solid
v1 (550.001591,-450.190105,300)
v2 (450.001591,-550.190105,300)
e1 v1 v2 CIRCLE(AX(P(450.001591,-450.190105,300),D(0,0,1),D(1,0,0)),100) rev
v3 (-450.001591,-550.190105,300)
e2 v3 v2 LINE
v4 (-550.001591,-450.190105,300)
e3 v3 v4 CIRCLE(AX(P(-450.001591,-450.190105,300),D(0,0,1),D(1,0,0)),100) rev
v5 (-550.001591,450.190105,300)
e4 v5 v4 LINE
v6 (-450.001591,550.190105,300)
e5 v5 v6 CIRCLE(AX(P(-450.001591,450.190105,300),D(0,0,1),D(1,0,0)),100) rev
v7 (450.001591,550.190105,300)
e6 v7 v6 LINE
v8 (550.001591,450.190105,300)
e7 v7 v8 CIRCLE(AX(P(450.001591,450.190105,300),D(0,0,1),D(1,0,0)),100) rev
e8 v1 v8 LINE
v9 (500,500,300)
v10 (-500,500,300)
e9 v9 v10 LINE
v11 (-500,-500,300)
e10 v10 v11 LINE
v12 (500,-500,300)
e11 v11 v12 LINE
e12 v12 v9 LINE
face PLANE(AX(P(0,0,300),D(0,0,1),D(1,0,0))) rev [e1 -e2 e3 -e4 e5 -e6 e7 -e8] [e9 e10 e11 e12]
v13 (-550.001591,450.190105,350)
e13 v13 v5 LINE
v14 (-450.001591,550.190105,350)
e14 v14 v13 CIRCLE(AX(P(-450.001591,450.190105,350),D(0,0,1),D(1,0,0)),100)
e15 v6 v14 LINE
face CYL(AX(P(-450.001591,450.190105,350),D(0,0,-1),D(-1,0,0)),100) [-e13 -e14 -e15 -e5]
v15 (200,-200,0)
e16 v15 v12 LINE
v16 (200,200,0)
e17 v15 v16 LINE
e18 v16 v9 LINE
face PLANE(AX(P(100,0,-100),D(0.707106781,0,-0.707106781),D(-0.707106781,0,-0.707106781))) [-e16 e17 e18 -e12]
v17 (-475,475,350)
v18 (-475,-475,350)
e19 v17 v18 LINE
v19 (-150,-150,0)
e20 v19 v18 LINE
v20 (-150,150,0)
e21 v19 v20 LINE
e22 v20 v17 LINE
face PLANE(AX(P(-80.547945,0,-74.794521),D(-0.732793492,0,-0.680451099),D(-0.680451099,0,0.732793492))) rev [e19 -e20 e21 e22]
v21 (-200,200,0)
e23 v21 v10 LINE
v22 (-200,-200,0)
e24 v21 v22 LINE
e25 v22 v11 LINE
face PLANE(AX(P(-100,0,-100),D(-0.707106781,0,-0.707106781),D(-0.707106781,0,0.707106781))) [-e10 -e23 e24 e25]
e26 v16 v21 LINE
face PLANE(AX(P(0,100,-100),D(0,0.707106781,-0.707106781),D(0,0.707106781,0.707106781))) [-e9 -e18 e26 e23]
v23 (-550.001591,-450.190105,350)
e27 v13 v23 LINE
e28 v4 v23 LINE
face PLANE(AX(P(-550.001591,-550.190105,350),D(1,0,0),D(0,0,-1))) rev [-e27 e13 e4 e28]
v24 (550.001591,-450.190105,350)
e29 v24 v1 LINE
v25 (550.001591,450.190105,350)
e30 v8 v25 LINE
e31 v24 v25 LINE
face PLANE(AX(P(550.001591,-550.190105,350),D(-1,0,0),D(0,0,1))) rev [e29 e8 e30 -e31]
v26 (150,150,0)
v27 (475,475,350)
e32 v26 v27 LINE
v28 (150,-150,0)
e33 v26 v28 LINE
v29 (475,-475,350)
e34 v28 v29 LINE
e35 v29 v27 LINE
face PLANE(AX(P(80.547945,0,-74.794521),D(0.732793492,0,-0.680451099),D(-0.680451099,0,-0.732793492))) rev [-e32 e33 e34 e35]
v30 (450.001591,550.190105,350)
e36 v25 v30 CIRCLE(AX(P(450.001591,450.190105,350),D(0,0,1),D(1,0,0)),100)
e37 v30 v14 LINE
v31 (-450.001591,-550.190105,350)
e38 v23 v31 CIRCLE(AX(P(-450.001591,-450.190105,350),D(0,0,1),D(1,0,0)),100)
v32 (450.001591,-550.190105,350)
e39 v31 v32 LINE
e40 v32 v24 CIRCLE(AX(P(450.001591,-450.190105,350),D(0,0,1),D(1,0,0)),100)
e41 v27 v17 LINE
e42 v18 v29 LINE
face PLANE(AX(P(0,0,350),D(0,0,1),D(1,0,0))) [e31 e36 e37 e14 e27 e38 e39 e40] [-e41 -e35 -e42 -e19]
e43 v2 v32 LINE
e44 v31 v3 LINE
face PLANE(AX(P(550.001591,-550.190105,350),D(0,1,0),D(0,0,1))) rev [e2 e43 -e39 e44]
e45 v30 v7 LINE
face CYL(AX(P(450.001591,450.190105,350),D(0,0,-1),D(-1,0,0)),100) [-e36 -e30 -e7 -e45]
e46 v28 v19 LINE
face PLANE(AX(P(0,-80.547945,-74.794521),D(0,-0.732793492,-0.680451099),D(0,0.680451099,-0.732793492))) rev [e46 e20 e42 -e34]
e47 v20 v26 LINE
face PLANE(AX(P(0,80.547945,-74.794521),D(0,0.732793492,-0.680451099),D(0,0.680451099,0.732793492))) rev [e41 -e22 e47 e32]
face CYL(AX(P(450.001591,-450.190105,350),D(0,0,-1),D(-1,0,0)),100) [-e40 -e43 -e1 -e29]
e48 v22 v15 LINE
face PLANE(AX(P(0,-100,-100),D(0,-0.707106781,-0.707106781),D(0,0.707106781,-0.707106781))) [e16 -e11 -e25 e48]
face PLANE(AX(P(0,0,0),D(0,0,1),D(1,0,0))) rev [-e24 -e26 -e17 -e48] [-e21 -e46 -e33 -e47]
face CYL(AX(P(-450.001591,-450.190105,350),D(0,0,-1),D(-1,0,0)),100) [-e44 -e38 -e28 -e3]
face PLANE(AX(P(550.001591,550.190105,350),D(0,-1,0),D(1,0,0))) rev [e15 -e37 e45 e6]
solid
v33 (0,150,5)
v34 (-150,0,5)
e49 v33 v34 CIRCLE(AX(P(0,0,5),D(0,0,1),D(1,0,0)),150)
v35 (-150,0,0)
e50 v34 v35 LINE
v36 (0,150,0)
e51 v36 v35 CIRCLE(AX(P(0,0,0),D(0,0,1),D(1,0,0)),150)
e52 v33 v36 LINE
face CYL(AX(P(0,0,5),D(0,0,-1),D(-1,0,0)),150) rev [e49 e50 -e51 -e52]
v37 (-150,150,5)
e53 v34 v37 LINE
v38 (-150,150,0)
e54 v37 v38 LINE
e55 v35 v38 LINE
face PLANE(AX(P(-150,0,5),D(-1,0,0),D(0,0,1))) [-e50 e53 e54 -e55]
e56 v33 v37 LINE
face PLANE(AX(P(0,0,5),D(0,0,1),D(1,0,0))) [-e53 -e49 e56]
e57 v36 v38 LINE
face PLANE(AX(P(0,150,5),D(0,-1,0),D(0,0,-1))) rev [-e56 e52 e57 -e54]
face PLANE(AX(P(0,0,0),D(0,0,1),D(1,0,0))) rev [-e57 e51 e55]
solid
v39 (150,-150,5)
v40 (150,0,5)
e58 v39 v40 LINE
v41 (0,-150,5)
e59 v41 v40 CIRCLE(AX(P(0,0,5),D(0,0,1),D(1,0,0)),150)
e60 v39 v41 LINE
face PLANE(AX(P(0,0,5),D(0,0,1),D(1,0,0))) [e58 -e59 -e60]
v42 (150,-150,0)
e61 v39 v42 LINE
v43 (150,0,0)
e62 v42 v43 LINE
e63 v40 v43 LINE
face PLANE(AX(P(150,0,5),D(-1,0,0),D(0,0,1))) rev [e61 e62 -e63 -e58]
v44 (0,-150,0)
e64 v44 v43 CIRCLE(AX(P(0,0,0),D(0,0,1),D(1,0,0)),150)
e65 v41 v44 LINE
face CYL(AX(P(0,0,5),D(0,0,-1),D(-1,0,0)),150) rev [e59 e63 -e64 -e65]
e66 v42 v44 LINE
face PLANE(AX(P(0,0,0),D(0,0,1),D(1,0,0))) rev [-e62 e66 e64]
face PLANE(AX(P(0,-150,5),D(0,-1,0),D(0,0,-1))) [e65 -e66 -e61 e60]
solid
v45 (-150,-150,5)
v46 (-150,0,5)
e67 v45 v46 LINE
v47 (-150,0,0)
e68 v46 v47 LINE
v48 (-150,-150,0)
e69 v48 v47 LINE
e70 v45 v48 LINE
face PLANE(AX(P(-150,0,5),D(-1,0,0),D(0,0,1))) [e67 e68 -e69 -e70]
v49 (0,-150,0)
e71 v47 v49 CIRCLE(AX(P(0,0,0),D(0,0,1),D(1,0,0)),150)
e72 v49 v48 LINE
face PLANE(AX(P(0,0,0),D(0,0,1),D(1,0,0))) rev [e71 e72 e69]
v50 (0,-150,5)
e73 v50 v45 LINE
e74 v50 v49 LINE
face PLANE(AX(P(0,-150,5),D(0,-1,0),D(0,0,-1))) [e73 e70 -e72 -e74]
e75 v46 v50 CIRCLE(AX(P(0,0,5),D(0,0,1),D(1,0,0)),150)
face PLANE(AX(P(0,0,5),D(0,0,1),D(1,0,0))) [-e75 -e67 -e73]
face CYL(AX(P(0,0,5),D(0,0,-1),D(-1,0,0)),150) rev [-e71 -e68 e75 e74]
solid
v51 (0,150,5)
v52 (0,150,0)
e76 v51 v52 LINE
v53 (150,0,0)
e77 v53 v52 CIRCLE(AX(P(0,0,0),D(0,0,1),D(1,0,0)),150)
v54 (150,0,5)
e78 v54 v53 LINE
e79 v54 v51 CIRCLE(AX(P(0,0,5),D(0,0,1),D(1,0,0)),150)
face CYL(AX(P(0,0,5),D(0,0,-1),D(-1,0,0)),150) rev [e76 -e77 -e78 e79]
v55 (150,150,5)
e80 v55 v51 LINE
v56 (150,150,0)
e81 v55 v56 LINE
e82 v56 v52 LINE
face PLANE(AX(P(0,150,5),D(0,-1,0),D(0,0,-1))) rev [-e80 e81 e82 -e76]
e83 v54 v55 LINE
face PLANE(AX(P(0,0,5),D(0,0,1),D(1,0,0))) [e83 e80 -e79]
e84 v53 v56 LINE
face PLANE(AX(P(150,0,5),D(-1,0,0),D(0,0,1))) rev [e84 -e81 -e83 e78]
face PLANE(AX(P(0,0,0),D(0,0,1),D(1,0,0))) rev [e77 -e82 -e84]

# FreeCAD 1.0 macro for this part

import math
import FreeCAD as App
import Part
import Sketcher
from FreeCAD import Vector


def edges_at(feature, points):
    """Names of the edges that pass closest to the given points."""
    edges = feature.Shape.Edges
    near = lambda p: min(range(len(edges)), key=lambda i: edges[i].distToShape(Part.Vertex(*p))[0])
    return sorted({f"Edge{near(p) + 1}" for p in points})

doc = App.newDocument("Part")
body = doc.addObject("PartDesign::Body", "Body")

sketch1 = body.newObject("Sketcher::SketchObject", "Sketch")
sketch1.AttachmentSupport = (doc.getObject("XY_Plane"), [""])
sketch1.MapMode = "FlatFace"
sketch1.addGeometry([
    Part.LineSegment(Vector(-200, -200, 0), Vector(200, -200, 0)),
    Part.LineSegment(Vector(200, -200, 0), Vector(200, 200, 0)),
    Part.LineSegment(Vector(200, 200, 0), Vector(-200, 200, 0)),
    Part.LineSegment(Vector(-200, 200, 0), Vector(-200, -200, 0)),
], False)
sketch1.addConstraint([
    Sketcher.Constraint("Coincident", 0, 2, 1, 1),
    Sketcher.Constraint("Coincident", 1, 2, 2, 1),
    Sketcher.Constraint("Coincident", 2, 2, 3, 1),
    Sketcher.Constraint("Coincident", 3, 2, 0, 1),
    Sketcher.Constraint("Horizontal", 0),
    Sketcher.Constraint("Vertical", 1),
    Sketcher.Constraint("Horizontal", 2),
    Sketcher.Constraint("Vertical", 3),
    Sketcher.Constraint("Symmetric", 0, 2, 2, 2, -1, 1),
    Sketcher.Constraint("Equal", 2, 1),
    Sketcher.Constraint("DistanceX", 0, 1, 0, 2, 400.0),
])

sketch2 = body.newObject("Sketcher::SketchObject", "Sketch001")
sketch2.AttachmentSupport = (doc.getObject("XY_Plane"), [""])
sketch2.MapMode = "FlatFace"
sketch2.AttachmentOffset = App.Placement(Vector(0, 0, 300), App.Rotation())
sketch2.addGeometry([
    Part.LineSegment(Vector(-500, -500, 0), Vector(500, -500, 0)),
    Part.LineSegment(Vector(500, -500, 0), Vector(500, 500, 0)),
    Part.LineSegment(Vector(500, 500, 0), Vector(-500, 500, 0)),
    Part.LineSegment(Vector(-500, 500, 0), Vector(-500, -500, 0)),
], False)
sketch2.addConstraint([
    Sketcher.Constraint("Coincident", 0, 2, 1, 1),
    Sketcher.Constraint("Coincident", 1, 2, 2, 1),
    Sketcher.Constraint("Coincident", 2, 2, 3, 1),
    Sketcher.Constraint("Coincident", 3, 2, 0, 1),
    Sketcher.Constraint("Horizontal", 0),
    Sketcher.Constraint("Vertical", 1),
    Sketcher.Constraint("Horizontal", 2),
    Sketcher.Constraint("Vertical", 3),
    Sketcher.Constraint("Symmetric", 0, 2, 2, 2, -1, 1),
    Sketcher.Constraint("Equal", 2, 1),
    Sketcher.Constraint("DistanceX", 0, 1, 0, 2, 1000.0),
])

additiveloft = body.newObject("PartDesign::AdditiveLoft", "AdditiveLoft")
additiveloft.Profile = sketch1
additiveloft.Sections = [sketch2]

sketch3 = body.newObject("Sketcher::SketchObject", "Sketch002")
sketch3.AttachmentSupport = (doc.getObject("XY_Plane"), [""])
sketch3.MapMode = "FlatFace"
sketch3.AttachmentOffset = App.Placement(Vector(0, 0, 300), App.Rotation())
sketch3.addGeometry([
    Part.LineSegment(Vector(-550, 550, 0), Vector(-550, -550, 0)),
    Part.LineSegment(Vector(-550, -550, 0), Vector(550, -550, 0)),
    Part.LineSegment(Vector(550, -550, 0), Vector(550, 550, 0)),
    Part.LineSegment(Vector(550, 550, 0), Vector(-550, 550, 0)),
], False)
sketch3.addConstraint([
    Sketcher.Constraint("Coincident", 0, 2, 1, 1),
    Sketcher.Constraint("Coincident", 1, 2, 2, 1),
    Sketcher.Constraint("Coincident", 2, 2, 3, 1),
    Sketcher.Constraint("Coincident", 3, 2, 0, 1),
    Sketcher.Constraint("Vertical", 0),
    Sketcher.Constraint("Horizontal", 1),
    Sketcher.Constraint("Vertical", 2),
    Sketcher.Constraint("Horizontal", 3),
    Sketcher.Constraint("Symmetric", 0, 2, 2, 2, -1, 1),
    Sketcher.Constraint("DistanceY", 0, 2, 0, 1, 1100.38021),
    Sketcher.Constraint("DistanceX", 1, 1, 1, 2, 1100.003183),
])
pad1 = body.newObject("PartDesign::Pad", "Pad")
pad1.Profile = sketch3
pad1.Length = 50
doc.recompute()

fillet = body.newObject("PartDesign::Fillet", "Fillet")
fillet.Base = (pad1, edges_at(pad1, [(-550.002, -550.19, 325)]))
fillet.Radius = 100
doc.recompute()

fillet2 = body.newObject("PartDesign::Fillet", "Fillet001")
fillet2.Base = (fillet, edges_at(fillet, [(550.002, -550.19, 325)]))
fillet2.Radius = 100
doc.recompute()

fillet3 = body.newObject("PartDesign::Fillet", "Fillet002")
fillet3.Base = (fillet2, edges_at(fillet2, [(-550.002, 550.19, 325)]))
fillet3.Radius = 100
doc.recompute()

fillet4 = body.newObject("PartDesign::Fillet", "Fillet003")
fillet4.Base = (fillet3, edges_at(fillet3, [(550.002, 550.19, 325)]))
fillet4.Radius = 100

sketch4 = body.newObject("Sketcher::SketchObject", "Sketch003")
sketch4.AttachmentSupport = (doc.getObject("XY_Plane"), [""])
sketch4.MapMode = "FlatFace"
sketch4.addGeometry([
    Part.LineSegment(Vector(150, -150, 0), Vector(-150, -150, 0)),
    Part.LineSegment(Vector(-150, -150, 0), Vector(-150, 150, 0)),
    Part.LineSegment(Vector(-150, 150, 0), Vector(150, 150, 0)),
    Part.LineSegment(Vector(150, 150, 0), Vector(150, -150, 0)),
], False)
sketch4.addConstraint([
    Sketcher.Constraint("Coincident", 0, 2, 1, 1),
    Sketcher.Constraint("Coincident", 1, 2, 2, 1),
    Sketcher.Constraint("Coincident", 2, 2, 3, 1),
    Sketcher.Constraint("Coincident", 3, 2, 0, 1),
    Sketcher.Constraint("Horizontal", 0),
    Sketcher.Constraint("Vertical", 1),
    Sketcher.Constraint("Horizontal", 2),
    Sketcher.Constraint("Vertical", 3),
    Sketcher.Constraint("Symmetric", 0, 2, 2, 2, -1, 1),
    Sketcher.Constraint("Equal", 2, 1),
    Sketcher.Constraint("DistanceX", 0, 2, 0, 1, 300.0),
])

sketch5 = body.newObject("Sketcher::SketchObject", "Sketch004")
sketch5.AttachmentSupport = (doc.getObject("XY_Plane"), [""])
sketch5.MapMode = "FlatFace"
sketch5.AttachmentOffset = App.Placement(Vector(0, 0, 350), App.Rotation())
sketch5.addGeometry([
    Part.LineSegment(Vector(-475, -475, 0), Vector(475, -475, 0)),
    Part.LineSegment(Vector(475, -475, 0), Vector(475, 475, 0)),
    Part.LineSegment(Vector(475, 475, 0), Vector(-475, 475, 0)),
    Part.LineSegment(Vector(-475, 475, 0), Vector(-475, -475, 0)),
], False)
sketch5.addConstraint([
    Sketcher.Constraint("Coincident", 0, 2, 1, 1),
    Sketcher.Constraint("Coincident", 1, 2, 2, 1),
    Sketcher.Constraint("Coincident", 2, 2, 3, 1),
    Sketcher.Constraint("Coincident", 3, 2, 0, 1),
    Sketcher.Constraint("Horizontal", 0),
    Sketcher.Constraint("Vertical", 1),
    Sketcher.Constraint("Horizontal", 2),
    Sketcher.Constraint("Vertical", 3),
    Sketcher.Constraint("Symmetric", 0, 2, 2, 2, -1, 1),
    Sketcher.Constraint("Equal", 2, 1),
    Sketcher.Constraint("DistanceX", 0, 1, 0, 2, 950.0),
])

subtractiveloft = body.newObject("PartDesign::SubtractiveLoft", "SubtractiveLoft")
subtractiveloft.Profile = sketch4
subtractiveloft.Sections = [sketch5]
body2 = doc.addObject("PartDesign::Body", "Body001")

sketch6 = body2.newObject("Sketcher::SketchObject", "Sketch005")
sketch6.AttachmentSupport = (doc.getObject("XY_Plane001"), [""])
sketch6.MapMode = "FlatFace"
sketch6.addGeometry([
    Part.LineSegment(Vector(-150, 150, 0), Vector(-150, 0, 0)),
    Part.ArcOfCircle(Part.Circle(Vector(0, 0, 0), Vector(0, 0, 1), 150), math.radians(90), math.radians(180)),
    Part.LineSegment(Vector(0, 150, 0), Vector(-150, 150, 0)),
], False)
sketch6.addConstraint([
    Sketcher.Constraint("Tangent", 0, 2, 1, 2),
    Sketcher.Constraint("Tangent", 1, 1, 2, 1),
    Sketcher.Constraint("Coincident", 2, 2, 0, 1),
    Sketcher.Constraint("Vertical", 0),
    Sketcher.Constraint("Horizontal", 2),
    Sketcher.Constraint("Coincident", 1, 3, -1, 1),
    Sketcher.Constraint("Radius", 1, 150.0),
])
pad2 = body2.newObject("PartDesign::Pad", "Pad001")
pad2.Profile = sketch6
pad2.Length = 5
body3 = doc.addObject("PartDesign::Body", "Body002")

sketch7 = body3.newObject("Sketcher::SketchObject", "Sketch006")
sketch7.AttachmentSupport = (doc.getObject("XY_Plane002"), [""])
sketch7.MapMode = "FlatFace"
sketch7.addGeometry([
    Part.LineSegment(Vector(-150, -150, 0), Vector(0, -150, 0)),
    Part.ArcOfCircle(Part.Circle(Vector(0, 0, 0), Vector(0, 0, 1), 150), math.radians(180), math.radians(270)),
    Part.LineSegment(Vector(-150, 0, 0), Vector(-150, -150, 0)),
], False)
sketch7.addConstraint([
    Sketcher.Constraint("Tangent", 0, 2, 1, 2),
    Sketcher.Constraint("Tangent", 1, 1, 2, 1),
    Sketcher.Constraint("Coincident", 2, 2, 0, 1),
    Sketcher.Constraint("Horizontal", 0),
    Sketcher.Constraint("Vertical", 2),
    Sketcher.Constraint("Coincident", 1, 3, -1, 1),
    Sketcher.Constraint("Radius", 1, 150.0),
])
pad3 = body3.newObject("PartDesign::Pad", "Pad002")
pad3.Profile = sketch7
pad3.Length = 5
body4 = doc.addObject("PartDesign::Body", "Body003")

sketch8 = body4.newObject("Sketcher::SketchObject", "Sketch007")
sketch8.AttachmentSupport = (doc.getObject("XY_Plane003"), [""])
sketch8.MapMode = "FlatFace"
sketch8.addGeometry([
    Part.ArcOfCircle(Part.Circle(Vector(0, 0, 0), Vector(0, 0, 1), 150), math.radians(0), math.radians(90)),
    Part.LineSegment(Vector(150, 0, 0), Vector(150, 150, 0)),
    Part.LineSegment(Vector(150, 150, 0), Vector(0, 150, 0)),
], False)
sketch8.addConstraint([
    Sketcher.Constraint("Tangent", 0, 1, 1, 1),
    Sketcher.Constraint("Coincident", 1, 2, 2, 1),
    Sketcher.Constraint("Tangent", 2, 2, 0, 2),
    Sketcher.Constraint("Vertical", 1),
    Sketcher.Constraint("Horizontal", 2),
    Sketcher.Constraint("Coincident", 0, 3, -1, 1),
    Sketcher.Constraint("Radius", 0, 150.0),
])
pad4 = body4.newObject("PartDesign::Pad", "Pad003")
pad4.Profile = sketch8
pad4.Length = 5
body5 = doc.addObject("PartDesign::Body", "Body004")

sketch9 = body5.newObject("Sketcher::SketchObject", "Sketch008")
sketch9.AttachmentSupport = (doc.getObject("XY_Plane004"), [""])
sketch9.MapMode = "FlatFace"
sketch9.addGeometry([
    Part.LineSegment(Vector(0, -150, 0), Vector(150, -150, 0)),
    Part.LineSegment(Vector(150, -150, 0), Vector(150, 0, 0)),
    Part.ArcOfCircle(Part.Circle(Vector(0, 0, 0), Vector(0, 0, 1), 150), math.radians(-90), math.radians(0)),
], False)
sketch9.addConstraint([
    Sketcher.Constraint("Coincident", 0, 2, 1, 1),
    Sketcher.Constraint("Tangent", 1, 2, 2, 2),
    Sketcher.Constraint("Tangent", 2, 1, 0, 1),
    Sketcher.Constraint("Horizontal", 0),
    Sketcher.Constraint("Vertical", 1),
    Sketcher.Constraint("Coincident", 2, 3, -1, 1),
    Sketcher.Constraint("Radius", 2, 150.0),
])
pad5 = body5.newObject("PartDesign::Pad", "Pad004")
pad5.Profile = sketch9
pad5.Length = 5

doc.recompute()
